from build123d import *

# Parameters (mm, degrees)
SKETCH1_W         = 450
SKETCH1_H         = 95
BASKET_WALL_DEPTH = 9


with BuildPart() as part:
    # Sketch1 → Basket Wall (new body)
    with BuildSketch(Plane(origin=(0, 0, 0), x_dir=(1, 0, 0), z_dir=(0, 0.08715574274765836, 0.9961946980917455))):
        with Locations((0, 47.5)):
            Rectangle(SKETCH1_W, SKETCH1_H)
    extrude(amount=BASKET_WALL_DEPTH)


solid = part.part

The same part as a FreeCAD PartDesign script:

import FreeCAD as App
import Part
import Sketcher

V = App.Vector


def add_polygon(sketch, points):
    """Adds a closed chain of lines whose ends are joined by coincident constraints."""
    first, n = sketch.GeometryCount, len(points)
    for a, b in zip(points, points[1:] + points[:1]):
        sketch.addGeometry(Part.LineSegment(App.Vector(*a, 0), App.Vector(*b, 0)), False)
    for i in range(n):
        sketch.addConstraint(Sketcher.Constraint("Coincident", first + i, 2, first + (i + 1) % n, 1))

doc = App.newDocument("Part")
body = doc.addObject("PartDesign::Body", "Body")

sketch1 = doc.addObject("Sketcher::SketchObject", "Sketch")
body.addObject(sketch1)
sketch1.Placement = App.Placement(V(0, 0, 0), App.Rotation(V(1, 0, 0), V(0, 0.996194698, -0.087155743), V(0, 0.087155743, 0.996194698), "ZXY"))
add_polygon(sketch1, [(-225, 95), (-225, 0), (225, 0), (225, 95)])
sketch1.addConstraint([
    Sketcher.Constraint("Vertical", 0),
    Sketcher.Constraint("Horizontal", 1),
    Sketcher.Constraint("Vertical", 2),
    Sketcher.Constraint("Horizontal", 3),
    Sketcher.Constraint("Symmetric", 0, 2, 1, 2, -1, 1),
    Sketcher.Constraint("DistanceX", 1, 1, 1, 2, 450.0),
    Sketcher.Constraint("DistanceY", 0, 2, 0, 1, 95.0),
])
pad1 = doc.addObject("PartDesign::Pad", "Pad")
body.addObject(pad1)
pad1.Profile = sketch1
pad1.Length = 9

doc.recompute()
